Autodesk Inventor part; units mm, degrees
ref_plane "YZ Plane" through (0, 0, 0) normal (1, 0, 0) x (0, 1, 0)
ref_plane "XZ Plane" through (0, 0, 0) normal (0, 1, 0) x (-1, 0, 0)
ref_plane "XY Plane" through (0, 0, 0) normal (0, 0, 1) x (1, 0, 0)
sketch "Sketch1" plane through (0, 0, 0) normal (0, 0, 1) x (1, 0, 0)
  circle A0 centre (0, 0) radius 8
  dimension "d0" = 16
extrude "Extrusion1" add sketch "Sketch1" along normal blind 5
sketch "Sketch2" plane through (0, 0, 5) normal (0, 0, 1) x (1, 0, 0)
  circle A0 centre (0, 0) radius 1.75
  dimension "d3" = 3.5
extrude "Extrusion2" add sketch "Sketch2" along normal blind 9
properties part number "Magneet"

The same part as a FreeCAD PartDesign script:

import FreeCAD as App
import Part
import Sketcher

V = App.Vector
Q = App.Units.Quantity

doc = App.newDocument("Part")
body = doc.addObject("PartDesign::Body", "Body")

sketch1 = doc.addObject("Sketcher::SketchObject", "Sketch")
body.addObject(sketch1)
sketch1.AttachmentSupport = (doc.XY_Plane, [""])
sketch1.MapMode = "FlatFace"
sketch1.addGeometry(Part.Circle(V(0, 0, 0), V(0, 0, 1), 8), False)
sketch1.addConstraint(Sketcher.Constraint("Coincident", 0, 3, -1, 1))
sketch1.addConstraint(Sketcher.Constraint("Diameter", 0, Q("16 mm")))
pad1 = doc.addObject("PartDesign::Pad", "Pad")
body.addObject(pad1)
pad1.Profile = sketch1
pad1.Length = 5

sketch2 = doc.addObject("Sketcher::SketchObject", "Sketch001")
body.addObject(sketch2)
sketch2.AttachmentSupport = (doc.XY_Plane, [""])
sketch2.MapMode = "FlatFace"
sketch2.AttachmentOffset = App.Placement(V(0, 0, 5), App.Rotation())
sketch2.addGeometry(Part.Circle(V(0, 0, 0), V(0, 0, 1), 1.8), False)
sketch2.addConstraint(Sketcher.Constraint("Coincident", 0, 3, -1, 1))
sketch2.addConstraint(Sketcher.Constraint("Diameter", 0, Q("3.5 mm")))
pad2 = doc.addObject("PartDesign::Pad", "Pad001")
body.addObject(pad2)
pad2.Profile = sketch2
pad2.Length = 9

doc.recompute()
